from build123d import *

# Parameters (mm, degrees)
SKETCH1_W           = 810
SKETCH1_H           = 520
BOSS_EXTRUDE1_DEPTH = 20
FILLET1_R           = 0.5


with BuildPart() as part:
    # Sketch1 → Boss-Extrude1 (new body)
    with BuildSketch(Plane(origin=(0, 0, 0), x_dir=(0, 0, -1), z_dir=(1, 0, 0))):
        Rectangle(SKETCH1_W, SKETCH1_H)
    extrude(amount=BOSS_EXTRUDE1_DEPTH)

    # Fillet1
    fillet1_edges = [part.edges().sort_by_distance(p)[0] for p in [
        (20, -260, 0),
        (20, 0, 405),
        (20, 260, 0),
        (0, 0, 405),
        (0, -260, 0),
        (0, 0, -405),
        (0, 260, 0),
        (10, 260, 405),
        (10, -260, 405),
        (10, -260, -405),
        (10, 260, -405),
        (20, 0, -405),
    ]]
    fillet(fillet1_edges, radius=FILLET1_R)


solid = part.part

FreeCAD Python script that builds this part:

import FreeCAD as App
import Part
import Sketcher


def add_polygon(sketch, points):
    """Adds a closed chain of lines whose ends are joined by coincident constraints."""
    first, n = sketch.GeometryCount, len(points)
    for a, b in zip(points, points[1:] + points[:1]):
        sketch.addGeometry(Part.LineSegment(App.Vector(*a, 0), App.Vector(*b, 0)), False)
    for i in range(n):
        sketch.addConstraint(Sketcher.Constraint("Coincident", first + i, 2, first + (i + 1) % n, 1))

doc = App.newDocument("Part")
body = doc.addObject("PartDesign::Body", "Body")

# Sketch on YZ plane
sketch1 = body.newObject("Sketcher::SketchObject", "Sketch")
sketch1.AttachmentSupport = (doc.getObject("YZ_Plane"), [""])
sketch1.MapMode = "FlatFace"
add_polygon(sketch1, [(260, 405), (-260, 405), (-260, -405), (260, -405)])  # lines 0-3
sketch1.addConstraint([
    Sketcher.Constraint("Horizontal", 0),
    Sketcher.Constraint("Vertical", 1),
    Sketcher.Constraint("Horizontal", 2),
    Sketcher.Constraint("Vertical", 3),
    Sketcher.Constraint("Symmetric", 0, 2, 2, 2, -1, 1),
    Sketcher.Constraint("DistanceX", 0, 2, 0, 1, 520.0),
    Sketcher.Constraint("DistanceY", 1, 2, 1, 1, 810.0),
])
pad1 = body.newObject("PartDesign::Pad", "Pad")
pad1.Profile = sketch1
pad1.Length = 20
doc.recompute()

fillet = body.newObject("PartDesign::Fillet", "Fillet")
fillet.Base = (pad1, ["Edge1"])
fillet.UseAllEdges = True
fillet.Radius = 0.5

doc.recompute()
